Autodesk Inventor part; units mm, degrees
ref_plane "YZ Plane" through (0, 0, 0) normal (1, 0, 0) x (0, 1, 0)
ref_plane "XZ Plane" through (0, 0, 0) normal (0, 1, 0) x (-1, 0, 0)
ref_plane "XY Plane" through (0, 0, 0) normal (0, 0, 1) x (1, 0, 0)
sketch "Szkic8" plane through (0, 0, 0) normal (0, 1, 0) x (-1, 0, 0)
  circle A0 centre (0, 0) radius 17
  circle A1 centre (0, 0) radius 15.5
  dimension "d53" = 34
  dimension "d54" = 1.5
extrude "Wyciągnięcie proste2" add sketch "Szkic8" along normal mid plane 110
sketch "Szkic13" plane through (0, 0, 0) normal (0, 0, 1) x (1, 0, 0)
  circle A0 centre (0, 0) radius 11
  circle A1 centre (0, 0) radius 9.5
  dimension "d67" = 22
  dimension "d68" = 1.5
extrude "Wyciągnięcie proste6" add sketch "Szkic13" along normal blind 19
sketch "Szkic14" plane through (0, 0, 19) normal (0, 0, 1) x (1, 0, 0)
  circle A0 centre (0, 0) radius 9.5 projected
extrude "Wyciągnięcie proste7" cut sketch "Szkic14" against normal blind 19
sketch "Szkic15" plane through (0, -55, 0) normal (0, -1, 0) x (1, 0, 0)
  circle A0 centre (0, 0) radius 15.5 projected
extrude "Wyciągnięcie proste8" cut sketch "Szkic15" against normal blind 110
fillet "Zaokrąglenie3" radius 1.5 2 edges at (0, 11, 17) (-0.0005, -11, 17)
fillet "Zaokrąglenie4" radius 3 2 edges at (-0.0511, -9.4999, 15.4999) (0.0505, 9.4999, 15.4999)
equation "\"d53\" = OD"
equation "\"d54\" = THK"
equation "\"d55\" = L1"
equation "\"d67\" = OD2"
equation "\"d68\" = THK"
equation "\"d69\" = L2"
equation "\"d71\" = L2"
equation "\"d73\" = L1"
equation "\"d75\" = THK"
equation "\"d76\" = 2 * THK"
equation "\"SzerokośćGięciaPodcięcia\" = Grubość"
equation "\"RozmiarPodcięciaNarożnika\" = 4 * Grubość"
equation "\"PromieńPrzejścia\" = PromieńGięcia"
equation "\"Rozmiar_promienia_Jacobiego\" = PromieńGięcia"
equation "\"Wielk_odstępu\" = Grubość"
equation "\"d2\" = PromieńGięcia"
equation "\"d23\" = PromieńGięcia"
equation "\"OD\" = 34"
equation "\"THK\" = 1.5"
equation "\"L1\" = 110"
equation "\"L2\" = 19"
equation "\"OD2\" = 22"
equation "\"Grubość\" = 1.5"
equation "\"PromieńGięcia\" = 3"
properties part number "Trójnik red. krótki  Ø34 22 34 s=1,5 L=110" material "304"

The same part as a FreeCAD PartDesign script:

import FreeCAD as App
import Part
import Sketcher

V = App.Vector


def edges_at(feature, points):
    """Names of the edges that pass closest to the given points."""
    edges = feature.Shape.Edges
    near = lambda p: min(range(len(edges)), key=lambda i: edges[i].distToShape(Part.Vertex(*p))[0])
    return sorted({f"Edge{near(p) + 1}" for p in points})

doc = App.newDocument("Part")
body = doc.addObject("PartDesign::Body", "Body")

sketch1 = doc.addObject("Sketcher::SketchObject", "Sketch")
body.addObject(sketch1)
sketch1.AttachmentSupport = (doc.XZ_Plane, [""])
sketch1.MapMode = "FlatFace"
sketch1.addGeometry(Part.Circle(V(0, 0, 0), V(0, 0, 1), 17), False)
sketch1.addGeometry(Part.Circle(V(0, 0, 0), V(0, 0, 1), 16), False)
sketch1.addConstraint(Sketcher.Constraint("Coincident", 0, 3, -1, 1))
sketch1.addConstraint(Sketcher.Constraint("Coincident", 1, 3, -1, 1))
sketch1.addConstraint(Sketcher.Constraint("Diameter", 0, 34.0))
sketch1.addConstraint(Sketcher.Constraint("Diameter", 1, 31.0))
pad1 = doc.addObject("PartDesign::Pad", "Pad")
body.addObject(pad1)
pad1.Profile = sketch1
pad1.Length = 110
pad1.Midplane = True

sketch2 = doc.addObject("Sketcher::SketchObject", "Sketch001")
body.addObject(sketch2)
sketch2.AttachmentSupport = (doc.XY_Plane, [""])
sketch2.MapMode = "FlatFace"
sketch2.addGeometry(Part.Circle(V(0, 0, 0), V(0, 0, 1), 11), False)
sketch2.addGeometry(Part.Circle(V(0, 0, 0), V(0, 0, 1), 10), False)
sketch2.addConstraint(Sketcher.Constraint("Coincident", 0, 3, -1, 1))
sketch2.addConstraint(Sketcher.Constraint("Coincident", 1, 3, -1, 1))
sketch2.addConstraint(Sketcher.Constraint("Diameter", 0, 22.0))
sketch2.addConstraint(Sketcher.Constraint("Diameter", 1, 19.0))
pad2 = doc.addObject("PartDesign::Pad", "Pad001")
body.addObject(pad2)
pad2.Profile = sketch2
pad2.Length = 19

sketch3 = doc.addObject("Sketcher::SketchObject", "Sketch002")
body.addObject(sketch3)
sketch3.AttachmentSupport = (doc.XY_Plane, [""])
sketch3.MapMode = "FlatFace"
sketch3.AttachmentOffset = App.Placement(V(0, 0, 19), App.Rotation())
sketch3.addGeometry(Part.Circle(V(0, 0, 0), V(0, 0, 1), 10), False)
sketch3.addConstraint(Sketcher.Constraint("Coincident", 0, 3, -1, 1))
sketch3.addConstraint(Sketcher.Constraint("Diameter", 0, 19.0))
pocket1 = doc.addObject("PartDesign::Pocket", "Pocket")
body.addObject(pocket1)
pocket1.Profile = sketch3
pocket1.Length = 19

sketch4 = doc.addObject("Sketcher::SketchObject", "Sketch003")
body.addObject(sketch4)
sketch4.AttachmentSupport = (doc.XZ_Plane, [""])
sketch4.MapMode = "FlatFace"
sketch4.AttachmentOffset = App.Placement(V(0, 0, 55), App.Rotation())
sketch4.addGeometry(Part.Circle(V(0, 0, 0), V(0, 0, 1), 16), False)
sketch4.addConstraint(Sketcher.Constraint("Coincident", 0, 3, -1, 1))
sketch4.addConstraint(Sketcher.Constraint("Diameter", 0, 31.0))
pocket2 = doc.addObject("PartDesign::Pocket", "Pocket001")
body.addObject(pocket2)
pocket2.Profile = sketch4
pocket2.Length = 110
doc.recompute()

fillet = doc.addObject("PartDesign::Fillet", "Fillet")
body.addObject(fillet)
fillet.Base = (pocket2, edges_at(pocket2, [(0, 11, 17), (-0.001, -11, 17)]))
fillet.Radius = 1.5
doc.recompute()

fillet2 = doc.addObject("PartDesign::Fillet", "Fillet001")
body.addObject(fillet2)
fillet2.Base = (fillet, edges_at(fillet, [(-0.051, -9.5, 15.5), (0.051, 9.5, 15.5)]))
fillet2.Radius = 3

doc.recompute()
